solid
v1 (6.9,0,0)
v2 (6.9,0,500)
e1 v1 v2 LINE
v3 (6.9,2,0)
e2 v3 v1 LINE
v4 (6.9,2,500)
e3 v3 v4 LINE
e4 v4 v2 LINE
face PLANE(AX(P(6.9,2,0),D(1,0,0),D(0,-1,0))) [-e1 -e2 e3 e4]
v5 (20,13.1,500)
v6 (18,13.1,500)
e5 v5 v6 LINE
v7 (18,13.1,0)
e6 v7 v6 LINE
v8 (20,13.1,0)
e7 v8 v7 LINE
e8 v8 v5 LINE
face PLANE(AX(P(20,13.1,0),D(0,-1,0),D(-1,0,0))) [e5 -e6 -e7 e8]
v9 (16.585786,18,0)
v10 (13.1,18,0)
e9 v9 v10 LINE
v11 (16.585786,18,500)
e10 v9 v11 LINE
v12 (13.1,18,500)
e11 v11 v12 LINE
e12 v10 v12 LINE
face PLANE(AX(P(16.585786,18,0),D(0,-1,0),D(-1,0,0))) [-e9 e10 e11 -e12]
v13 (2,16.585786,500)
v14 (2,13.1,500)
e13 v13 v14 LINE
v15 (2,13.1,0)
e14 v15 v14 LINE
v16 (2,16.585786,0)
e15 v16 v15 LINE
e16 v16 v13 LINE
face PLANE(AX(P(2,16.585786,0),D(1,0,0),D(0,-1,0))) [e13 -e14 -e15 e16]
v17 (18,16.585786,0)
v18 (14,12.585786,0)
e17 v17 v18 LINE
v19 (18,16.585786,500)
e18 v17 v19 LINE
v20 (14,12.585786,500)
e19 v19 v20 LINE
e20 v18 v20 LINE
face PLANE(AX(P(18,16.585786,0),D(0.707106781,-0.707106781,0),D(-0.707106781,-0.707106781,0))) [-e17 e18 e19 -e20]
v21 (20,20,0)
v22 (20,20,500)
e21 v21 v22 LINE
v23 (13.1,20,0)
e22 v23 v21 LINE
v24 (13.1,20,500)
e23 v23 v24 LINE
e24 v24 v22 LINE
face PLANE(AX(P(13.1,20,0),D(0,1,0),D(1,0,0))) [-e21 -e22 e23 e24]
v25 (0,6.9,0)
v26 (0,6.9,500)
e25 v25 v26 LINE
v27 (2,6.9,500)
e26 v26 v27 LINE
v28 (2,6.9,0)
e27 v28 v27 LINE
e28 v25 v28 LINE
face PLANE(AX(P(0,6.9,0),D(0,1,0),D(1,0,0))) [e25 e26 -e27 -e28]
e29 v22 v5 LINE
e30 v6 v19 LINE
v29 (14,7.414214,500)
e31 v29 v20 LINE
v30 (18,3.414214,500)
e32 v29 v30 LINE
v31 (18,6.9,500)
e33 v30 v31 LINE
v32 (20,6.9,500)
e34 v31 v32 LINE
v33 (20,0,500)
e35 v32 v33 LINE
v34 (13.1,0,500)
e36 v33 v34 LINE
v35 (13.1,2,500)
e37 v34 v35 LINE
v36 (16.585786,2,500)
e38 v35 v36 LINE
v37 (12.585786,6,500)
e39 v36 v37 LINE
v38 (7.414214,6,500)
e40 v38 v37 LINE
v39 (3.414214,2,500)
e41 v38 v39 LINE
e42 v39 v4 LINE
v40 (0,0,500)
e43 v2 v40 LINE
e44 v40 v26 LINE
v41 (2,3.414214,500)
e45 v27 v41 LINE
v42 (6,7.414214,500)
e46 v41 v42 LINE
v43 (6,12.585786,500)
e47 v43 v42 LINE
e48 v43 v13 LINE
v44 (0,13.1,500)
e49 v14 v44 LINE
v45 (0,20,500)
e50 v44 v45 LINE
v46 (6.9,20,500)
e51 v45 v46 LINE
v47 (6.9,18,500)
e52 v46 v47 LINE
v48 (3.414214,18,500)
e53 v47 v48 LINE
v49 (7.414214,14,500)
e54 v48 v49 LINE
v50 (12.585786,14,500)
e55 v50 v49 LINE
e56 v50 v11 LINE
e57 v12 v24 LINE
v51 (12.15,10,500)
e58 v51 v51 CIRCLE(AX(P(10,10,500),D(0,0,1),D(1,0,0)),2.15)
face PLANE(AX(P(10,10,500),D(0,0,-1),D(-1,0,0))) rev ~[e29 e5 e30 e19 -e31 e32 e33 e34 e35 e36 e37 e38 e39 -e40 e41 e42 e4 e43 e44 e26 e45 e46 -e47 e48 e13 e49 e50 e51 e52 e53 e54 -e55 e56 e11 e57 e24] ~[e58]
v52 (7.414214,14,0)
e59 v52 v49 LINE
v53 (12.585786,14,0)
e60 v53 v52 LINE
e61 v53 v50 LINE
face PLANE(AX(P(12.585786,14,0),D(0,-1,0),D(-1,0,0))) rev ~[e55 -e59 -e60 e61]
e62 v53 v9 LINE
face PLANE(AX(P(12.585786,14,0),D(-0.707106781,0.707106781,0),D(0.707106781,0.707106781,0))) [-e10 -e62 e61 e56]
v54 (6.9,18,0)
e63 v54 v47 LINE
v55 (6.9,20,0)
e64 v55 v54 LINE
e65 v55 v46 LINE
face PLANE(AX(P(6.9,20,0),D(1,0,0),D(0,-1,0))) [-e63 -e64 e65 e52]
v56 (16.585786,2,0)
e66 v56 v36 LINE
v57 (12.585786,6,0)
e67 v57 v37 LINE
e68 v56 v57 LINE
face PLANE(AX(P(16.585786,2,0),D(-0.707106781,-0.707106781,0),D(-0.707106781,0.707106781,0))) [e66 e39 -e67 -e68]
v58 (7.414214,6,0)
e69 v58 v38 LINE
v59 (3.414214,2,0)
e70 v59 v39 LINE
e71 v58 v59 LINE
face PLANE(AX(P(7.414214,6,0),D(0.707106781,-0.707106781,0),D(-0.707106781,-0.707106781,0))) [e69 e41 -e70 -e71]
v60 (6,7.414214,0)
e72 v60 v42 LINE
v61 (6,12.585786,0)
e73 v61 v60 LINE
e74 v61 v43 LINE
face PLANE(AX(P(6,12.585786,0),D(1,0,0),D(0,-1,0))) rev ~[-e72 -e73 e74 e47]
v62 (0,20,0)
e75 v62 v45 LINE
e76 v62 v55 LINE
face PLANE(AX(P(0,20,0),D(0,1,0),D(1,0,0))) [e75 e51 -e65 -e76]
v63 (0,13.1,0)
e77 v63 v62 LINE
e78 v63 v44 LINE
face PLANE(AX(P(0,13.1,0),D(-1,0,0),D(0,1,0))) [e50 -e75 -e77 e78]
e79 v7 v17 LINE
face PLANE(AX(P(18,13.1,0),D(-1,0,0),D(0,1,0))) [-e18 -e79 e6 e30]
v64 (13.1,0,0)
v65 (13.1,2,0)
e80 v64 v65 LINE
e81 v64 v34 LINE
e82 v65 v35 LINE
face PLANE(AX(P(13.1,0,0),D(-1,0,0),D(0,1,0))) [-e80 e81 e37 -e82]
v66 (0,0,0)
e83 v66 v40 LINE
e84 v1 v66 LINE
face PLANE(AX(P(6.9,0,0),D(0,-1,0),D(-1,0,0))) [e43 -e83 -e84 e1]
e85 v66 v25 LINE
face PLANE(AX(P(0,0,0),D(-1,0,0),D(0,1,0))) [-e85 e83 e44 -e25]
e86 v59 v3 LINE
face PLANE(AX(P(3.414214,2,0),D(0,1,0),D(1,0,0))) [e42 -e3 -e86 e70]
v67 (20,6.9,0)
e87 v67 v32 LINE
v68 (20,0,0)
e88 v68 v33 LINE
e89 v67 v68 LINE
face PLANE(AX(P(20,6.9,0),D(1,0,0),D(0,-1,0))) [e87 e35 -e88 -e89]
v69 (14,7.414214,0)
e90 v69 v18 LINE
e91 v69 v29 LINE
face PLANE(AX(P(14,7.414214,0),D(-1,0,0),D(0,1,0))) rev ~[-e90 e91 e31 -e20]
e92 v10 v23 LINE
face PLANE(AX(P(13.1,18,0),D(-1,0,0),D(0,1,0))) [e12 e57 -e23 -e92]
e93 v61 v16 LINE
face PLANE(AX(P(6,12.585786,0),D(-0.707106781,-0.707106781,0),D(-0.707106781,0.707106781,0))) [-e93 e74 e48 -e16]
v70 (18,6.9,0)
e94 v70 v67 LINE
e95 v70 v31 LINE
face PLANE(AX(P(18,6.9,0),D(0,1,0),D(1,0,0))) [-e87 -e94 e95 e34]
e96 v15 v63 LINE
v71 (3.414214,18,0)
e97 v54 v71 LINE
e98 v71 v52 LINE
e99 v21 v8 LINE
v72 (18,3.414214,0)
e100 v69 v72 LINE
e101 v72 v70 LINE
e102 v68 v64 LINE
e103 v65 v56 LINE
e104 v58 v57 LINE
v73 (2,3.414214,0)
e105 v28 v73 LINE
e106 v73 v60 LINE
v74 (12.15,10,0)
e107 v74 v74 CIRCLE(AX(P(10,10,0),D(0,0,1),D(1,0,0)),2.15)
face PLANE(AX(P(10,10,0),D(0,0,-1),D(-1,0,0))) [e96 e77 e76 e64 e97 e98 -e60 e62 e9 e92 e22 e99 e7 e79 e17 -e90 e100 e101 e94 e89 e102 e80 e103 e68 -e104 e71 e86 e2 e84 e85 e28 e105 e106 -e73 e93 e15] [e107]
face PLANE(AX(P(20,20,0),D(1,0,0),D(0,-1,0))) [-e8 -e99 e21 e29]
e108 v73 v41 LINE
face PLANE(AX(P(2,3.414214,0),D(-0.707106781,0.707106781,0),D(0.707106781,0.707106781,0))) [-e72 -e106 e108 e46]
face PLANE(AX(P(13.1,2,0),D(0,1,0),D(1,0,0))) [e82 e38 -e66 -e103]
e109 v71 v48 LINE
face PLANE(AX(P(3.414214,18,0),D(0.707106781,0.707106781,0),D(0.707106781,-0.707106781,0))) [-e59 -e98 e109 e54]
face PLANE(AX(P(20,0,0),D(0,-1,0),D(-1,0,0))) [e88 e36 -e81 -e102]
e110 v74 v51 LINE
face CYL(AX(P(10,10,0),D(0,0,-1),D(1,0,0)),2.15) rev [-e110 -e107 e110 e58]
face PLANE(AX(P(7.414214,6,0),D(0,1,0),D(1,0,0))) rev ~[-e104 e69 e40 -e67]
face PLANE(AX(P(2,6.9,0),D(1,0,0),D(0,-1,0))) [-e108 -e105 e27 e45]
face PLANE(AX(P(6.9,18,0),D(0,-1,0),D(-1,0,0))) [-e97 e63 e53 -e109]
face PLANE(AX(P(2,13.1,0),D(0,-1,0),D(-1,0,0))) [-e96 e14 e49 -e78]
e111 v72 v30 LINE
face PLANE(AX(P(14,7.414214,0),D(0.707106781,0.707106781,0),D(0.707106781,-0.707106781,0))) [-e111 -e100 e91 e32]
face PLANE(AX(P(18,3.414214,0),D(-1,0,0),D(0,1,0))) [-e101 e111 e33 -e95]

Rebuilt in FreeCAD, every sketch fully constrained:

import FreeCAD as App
import Part
import Sketcher

doc = App.newDocument("Part")
body = doc.addObject("PartDesign::Body", "Body")

sketch1 = doc.addObject("Sketcher::SketchObject", "Sketch")
body.addObject(sketch1)
sketch1.AttachmentSupport = (doc.XY_Plane, [""])
sketch1.MapMode = "FlatFace"
sketch1.addGeometry(Part.LineSegment(App.Vector(18, 13.1, 0), App.Vector(20, 13.1, 0)), False)
sketch1.addGeometry(Part.LineSegment(App.Vector(20, 13.1, 0), App.Vector(20, 20, 0)), False)
sketch1.addGeometry(Part.LineSegment(App.Vector(20, 20, 0), App.Vector(13.1, 20, 0)), False)
sketch1.addGeometry(Part.LineSegment(App.Vector(13.1, 20, 0), App.Vector(13.1, 18, 0)), False)
sketch1.addGeometry(Part.LineSegment(App.Vector(13.1, 18, 0), App.Vector(16.585786, 18, 0)), False)
sketch1.addGeometry(Part.LineSegment(App.Vector(16.585786, 18, 0), App.Vector(12.585786, 14, 0)), False)
sketch1.addGeometry(Part.LineSegment(App.Vector(12.585786, 14, 0), App.Vector(7.414214, 14, 0)), False)
sketch1.addGeometry(Part.LineSegment(App.Vector(7.414214, 14, 0), App.Vector(3.414214, 18, 0)), False)
sketch1.addGeometry(Part.LineSegment(App.Vector(3.414214, 18, 0), App.Vector(6.9, 18, 0)), False)
sketch1.addGeometry(Part.LineSegment(App.Vector(6.9, 18, 0), App.Vector(6.9, 20, 0)), False)
sketch1.addGeometry(Part.LineSegment(App.Vector(6.9, 20, 0), App.Vector(0, 20, 0)), False)
sketch1.addGeometry(Part.LineSegment(App.Vector(0, 20, 0), App.Vector(0, 13.1, 0)), False)
sketch1.addGeometry(Part.LineSegment(App.Vector(0, 13.1, 0), App.Vector(2, 13.1, 0)), False)
sketch1.addGeometry(Part.LineSegment(App.Vector(2, 13.1, 0), App.Vector(2, 16.585786, 0)), False)
sketch1.addGeometry(Part.LineSegment(App.Vector(2, 16.585786, 0), App.Vector(6, 12.585786, 0)), False)
sketch1.addGeometry(Part.LineSegment(App.Vector(6, 12.585786, 0), App.Vector(6, 7.414214, 0)), False)
sketch1.addGeometry(Part.LineSegment(App.Vector(6, 7.414214, 0), App.Vector(2, 3.414214, 0)), False)
sketch1.addGeometry(Part.LineSegment(App.Vector(2, 3.414214, 0), App.Vector(2, 6.9, 0)), False)
sketch1.addGeometry(Part.LineSegment(App.Vector(2, 6.9, 0), App.Vector(0, 6.9, 0)), False)
sketch1.addGeometry(Part.LineSegment(App.Vector(0, 6.9, 0), App.Vector(0, 0, 0)), False)
sketch1.addGeometry(Part.LineSegment(App.Vector(0, 0, 0), App.Vector(6.9, 0, 0)), False)
sketch1.addGeometry(Part.LineSegment(App.Vector(6.9, 0, 0), App.Vector(6.9, 2, 0)), False)
sketch1.addGeometry(Part.LineSegment(App.Vector(6.9, 2, 0), App.Vector(3.414214, 2, 0)), False)
sketch1.addGeometry(Part.LineSegment(App.Vector(3.414214, 2, 0), App.Vector(7.414214, 6, 0)), False)
sketch1.addGeometry(Part.LineSegment(App.Vector(7.414214, 6, 0), App.Vector(12.585786, 6, 0)), False)
sketch1.addGeometry(Part.LineSegment(App.Vector(12.585786, 6, 0), App.Vector(16.585786, 2, 0)), False)
sketch1.addGeometry(Part.LineSegment(App.Vector(16.585786, 2, 0), App.Vector(13.1, 2, 0)), False)
sketch1.addGeometry(Part.LineSegment(App.Vector(13.1, 2, 0), App.Vector(13.1, 0, 0)), False)
sketch1.addGeometry(Part.LineSegment(App.Vector(13.1, 0, 0), App.Vector(20, 0, 0)), False)
sketch1.addGeometry(Part.LineSegment(App.Vector(20, 0, 0), App.Vector(20, 6.9, 0)), False)
sketch1.addGeometry(Part.LineSegment(App.Vector(20, 6.9, 0), App.Vector(18, 6.9, 0)), False)
sketch1.addGeometry(Part.LineSegment(App.Vector(18, 6.9, 0), App.Vector(18, 3.414214, 0)), False)
sketch1.addGeometry(Part.LineSegment(App.Vector(18, 3.414214, 0), App.Vector(14, 7.414214, 0)), False)
sketch1.addGeometry(Part.LineSegment(App.Vector(14, 7.414214, 0), App.Vector(14, 12.585786, 0)), False)
sketch1.addGeometry(Part.LineSegment(App.Vector(14, 12.585786, 0), App.Vector(18, 16.585786, 0)), False)
sketch1.addGeometry(Part.LineSegment(App.Vector(18, 16.585786, 0), App.Vector(18, 13.1, 0)), False)
sketch1.addGeometry(Part.Circle(App.Vector(10, 10, 0), App.Vector(0, 0, 1), 2.15), False)
sketch1.addConstraint(Sketcher.Constraint("Coincident", 0, 2, 1, 1))
sketch1.addConstraint(Sketcher.Constraint("Coincident", 1, 2, 2, 1))
sketch1.addConstraint(Sketcher.Constraint("Coincident", 2, 2, 3, 1))
sketch1.addConstraint(Sketcher.Constraint("Coincident", 3, 2, 4, 1))
sketch1.addConstraint(Sketcher.Constraint("Coincident", 4, 2, 5, 1))
sketch1.addConstraint(Sketcher.Constraint("Coincident", 5, 2, 6, 1))
sketch1.addConstraint(Sketcher.Constraint("Coincident", 6, 2, 7, 1))
sketch1.addConstraint(Sketcher.Constraint("Coincident", 7, 2, 8, 1))
sketch1.addConstraint(Sketcher.Constraint("Coincident", 8, 2, 9, 1))
sketch1.addConstraint(Sketcher.Constraint("Coincident", 9, 2, 10, 1))
sketch1.addConstraint(Sketcher.Constraint("Coincident", 10, 2, 11, 1))
sketch1.addConstraint(Sketcher.Constraint("Coincident", 11, 2, 12, 1))
sketch1.addConstraint(Sketcher.Constraint("Coincident", 12, 2, 13, 1))
sketch1.addConstraint(Sketcher.Constraint("Coincident", 13, 2, 14, 1))
sketch1.addConstraint(Sketcher.Constraint("Coincident", 14, 2, 15, 1))
sketch1.addConstraint(Sketcher.Constraint("Coincident", 15, 2, 16, 1))
sketch1.addConstraint(Sketcher.Constraint("Coincident", 16, 2, 17, 1))
sketch1.addConstraint(Sketcher.Constraint("Coincident", 17, 2, 18, 1))
sketch1.addConstraint(Sketcher.Constraint("Coincident", 18, 2, 19, 1))
sketch1.addConstraint(Sketcher.Constraint("Coincident", 19, 2, 20, 1))
sketch1.addConstraint(Sketcher.Constraint("Coincident", 20, 2, 21, 1))
sketch1.addConstraint(Sketcher.Constraint("Coincident", 21, 2, 22, 1))
sketch1.addConstraint(Sketcher.Constraint("Coincident", 22, 2, 23, 1))
sketch1.addConstraint(Sketcher.Constraint("Coincident", 23, 2, 24, 1))
sketch1.addConstraint(Sketcher.Constraint("Coincident", 24, 2, 25, 1))
sketch1.addConstraint(Sketcher.Constraint("Coincident", 25, 2, 26, 1))
sketch1.addConstraint(Sketcher.Constraint("Coincident", 26, 2, 27, 1))
sketch1.addConstraint(Sketcher.Constraint("Coincident", 27, 2, 28, 1))
sketch1.addConstraint(Sketcher.Constraint("Coincident", 28, 2, 29, 1))
sketch1.addConstraint(Sketcher.Constraint("Coincident", 29, 2, 30, 1))
sketch1.addConstraint(Sketcher.Constraint("Coincident", 30, 2, 31, 1))
sketch1.addConstraint(Sketcher.Constraint("Coincident", 31, 2, 32, 1))
sketch1.addConstraint(Sketcher.Constraint("Coincident", 32, 2, 33, 1))
sketch1.addConstraint(Sketcher.Constraint("Coincident", 33, 2, 34, 1))
sketch1.addConstraint(Sketcher.Constraint("Coincident", 34, 2, 35, 1))
sketch1.addConstraint(Sketcher.Constraint("Coincident", 35, 2, 0, 1))
sketch1.addConstraint(Sketcher.Constraint("Horizontal", 0))
sketch1.addConstraint(Sketcher.Constraint("Vertical", 1))
sketch1.addConstraint(Sketcher.Constraint("Horizontal", 2))
sketch1.addConstraint(Sketcher.Constraint("Vertical", 3))
sketch1.addConstraint(Sketcher.Constraint("Horizontal", 4))
sketch1.addConstraint(Sketcher.Constraint("Horizontal", 6))
sketch1.addConstraint(Sketcher.Constraint("Horizontal", 8))
sketch1.addConstraint(Sketcher.Constraint("Vertical", 9))
sketch1.addConstraint(Sketcher.Constraint("Horizontal", 10))
sketch1.addConstraint(Sketcher.Constraint("Vertical", 11))
sketch1.addConstraint(Sketcher.Constraint("Horizontal", 12))
sketch1.addConstraint(Sketcher.Constraint("Vertical", 13))
sketch1.addConstraint(Sketcher.Constraint("Vertical", 15))
sketch1.addConstraint(Sketcher.Constraint("Vertical", 17))
sketch1.addConstraint(Sketcher.Constraint("Horizontal", 18))
sketch1.addConstraint(Sketcher.Constraint("Vertical", 19))
sketch1.addConstraint(Sketcher.Constraint("Horizontal", 20))
sketch1.addConstraint(Sketcher.Constraint("Vertical", 21))
sketch1.addConstraint(Sketcher.Constraint("Horizontal", 22))
sketch1.addConstraint(Sketcher.Constraint("Horizontal", 24))
sketch1.addConstraint(Sketcher.Constraint("Horizontal", 26))
sketch1.addConstraint(Sketcher.Constraint("Vertical", 27))
sketch1.addConstraint(Sketcher.Constraint("Horizontal", 28))
sketch1.addConstraint(Sketcher.Constraint("Vertical", 29))
sketch1.addConstraint(Sketcher.Constraint("Horizontal", 30))
sketch1.addConstraint(Sketcher.Constraint("Vertical", 31))
sketch1.addConstraint(Sketcher.Constraint("Vertical", 33))
sketch1.addConstraint(Sketcher.Constraint("Vertical", 35))
sketch1.addConstraint(Sketcher.Constraint("Coincident", 19, 2, -1, 1))
sketch1.addConstraint(Sketcher.Constraint("PointOnObject", 10, 2, -2))
sketch1.addConstraint(Sketcher.Constraint("PointOnObject", 27, 2, -1))
sketch1.addConstraint(Sketcher.Constraint("Perpendicular", 5, 7))
sketch1.addConstraint(Sketcher.Constraint("Parallel", 7, 14))
sketch1.addConstraint(Sketcher.Constraint("Perpendicular", 14, 16))
sketch1.addConstraint(Sketcher.Constraint("Parallel", 16, 23))
sketch1.addConstraint(Sketcher.Constraint("Perpendicular", 23, 25))
sketch1.addConstraint(Sketcher.Constraint("Parallel", 25, 32))
sketch1.addConstraint(Sketcher.Constraint("Perpendicular", 32, 34))
sketch1.addConstraint(Sketcher.Constraint("Horizontal", 4, 2, 7, 2))
sketch1.addConstraint(Sketcher.Constraint("Horizontal", 2, 2, 9, 2))
sketch1.addConstraint(Sketcher.Constraint("Horizontal", 0, 2, 11, 2))
sketch1.addConstraint(Sketcher.Constraint("Horizontal", 22, 2, 25, 2))
sketch1.addConstraint(Sketcher.Constraint("Horizontal", 18, 2, 29, 2))
sketch1.addConstraint(Sketcher.Constraint("Horizontal", 16, 2, 31, 2))
sketch1.addConstraint(Sketcher.Constraint("Horizontal", 15, 2, 32, 2))
sketch1.addConstraint(Sketcher.Constraint("Horizontal", 14, 2, 33, 2))
sketch1.addConstraint(Sketcher.Constraint("Horizontal", 13, 2, 34, 2))
sketch1.addConstraint(Sketcher.Constraint("Vertical", 13, 2, 16, 2))
sketch1.addConstraint(Sketcher.Constraint("Vertical", 9, 2, 20, 2))
sketch1.addConstraint(Sketcher.Constraint("Vertical", 7, 2, 22, 2))
sketch1.addConstraint(Sketcher.Constraint("Vertical", 6, 2, 23, 2))
sketch1.addConstraint(Sketcher.Constraint("Vertical", 5, 2, 24, 2))
sketch1.addConstraint(Sketcher.Constraint("Vertical", 4, 2, 25, 2))
sketch1.addConstraint(Sketcher.Constraint("Vertical", 3, 2, 26, 2))
sketch1.addConstraint(Sketcher.Constraint("Vertical", 1, 2, 28, 2))
sketch1.addConstraint(Sketcher.Constraint("Equal", 4, 8))
sketch1.addConstraint(Sketcher.Constraint("Equal", 2, 10))
sketch1.addConstraint(Sketcher.Constraint("Equal", 0, 12))
sketch1.addConstraint(Sketcher.Constraint("Equal", 28, 1))
sketch1.addConstraint(Sketcher.Constraint("Equal", 30, 3))
sketch1.addConstraint(Sketcher.Constraint("Equal", 26, 13))
sketch1.addConstraint(Sketcher.Constraint("Equal", 24, 15))
sketch1.addConstraint(Sketcher.Constraint("Equal", 13, 17))
sketch1.addConstraint(Sketcher.Constraint("Equal", 11, 19))
sketch1.addConstraint(Sketcher.Constraint("Equal", 9, 21))
sketch1.addConstraint(Sketcher.Constraint("Equal", 7, 14))
sketch1.addConstraint(Sketcher.Constraint("Diameter", 36, 4.3))
sketch1.addConstraint(Sketcher.Constraint("DistanceX", 0, 1, 0, 2, 2.0))
sketch1.addConstraint(Sketcher.Constraint("DistanceX", 2, 2, 2, 1, 6.9))
sketch1.addConstraint(Sketcher.Constraint("DistanceX", -1, 1, 36, 3, 10.0))
sketch1.addConstraint(Sketcher.Constraint("DistanceY", -1, 1, 36, 3, 10.0))
sketch1.addConstraint(Sketcher.Constraint("DistanceX", -1, 1, 0, 2, 20.0))
sketch1.addConstraint(Sketcher.Constraint("DistanceY", -1, 1, 5, 2, 14.0))
sketch1.addConstraint(Sketcher.Constraint("DistanceX", 4, 1, 4, 2, 3.485786))
pad1 = doc.addObject("PartDesign::Pad", "Pad")
body.addObject(pad1)
pad1.Profile = sketch1
pad1.Length = 500

doc.recompute()
